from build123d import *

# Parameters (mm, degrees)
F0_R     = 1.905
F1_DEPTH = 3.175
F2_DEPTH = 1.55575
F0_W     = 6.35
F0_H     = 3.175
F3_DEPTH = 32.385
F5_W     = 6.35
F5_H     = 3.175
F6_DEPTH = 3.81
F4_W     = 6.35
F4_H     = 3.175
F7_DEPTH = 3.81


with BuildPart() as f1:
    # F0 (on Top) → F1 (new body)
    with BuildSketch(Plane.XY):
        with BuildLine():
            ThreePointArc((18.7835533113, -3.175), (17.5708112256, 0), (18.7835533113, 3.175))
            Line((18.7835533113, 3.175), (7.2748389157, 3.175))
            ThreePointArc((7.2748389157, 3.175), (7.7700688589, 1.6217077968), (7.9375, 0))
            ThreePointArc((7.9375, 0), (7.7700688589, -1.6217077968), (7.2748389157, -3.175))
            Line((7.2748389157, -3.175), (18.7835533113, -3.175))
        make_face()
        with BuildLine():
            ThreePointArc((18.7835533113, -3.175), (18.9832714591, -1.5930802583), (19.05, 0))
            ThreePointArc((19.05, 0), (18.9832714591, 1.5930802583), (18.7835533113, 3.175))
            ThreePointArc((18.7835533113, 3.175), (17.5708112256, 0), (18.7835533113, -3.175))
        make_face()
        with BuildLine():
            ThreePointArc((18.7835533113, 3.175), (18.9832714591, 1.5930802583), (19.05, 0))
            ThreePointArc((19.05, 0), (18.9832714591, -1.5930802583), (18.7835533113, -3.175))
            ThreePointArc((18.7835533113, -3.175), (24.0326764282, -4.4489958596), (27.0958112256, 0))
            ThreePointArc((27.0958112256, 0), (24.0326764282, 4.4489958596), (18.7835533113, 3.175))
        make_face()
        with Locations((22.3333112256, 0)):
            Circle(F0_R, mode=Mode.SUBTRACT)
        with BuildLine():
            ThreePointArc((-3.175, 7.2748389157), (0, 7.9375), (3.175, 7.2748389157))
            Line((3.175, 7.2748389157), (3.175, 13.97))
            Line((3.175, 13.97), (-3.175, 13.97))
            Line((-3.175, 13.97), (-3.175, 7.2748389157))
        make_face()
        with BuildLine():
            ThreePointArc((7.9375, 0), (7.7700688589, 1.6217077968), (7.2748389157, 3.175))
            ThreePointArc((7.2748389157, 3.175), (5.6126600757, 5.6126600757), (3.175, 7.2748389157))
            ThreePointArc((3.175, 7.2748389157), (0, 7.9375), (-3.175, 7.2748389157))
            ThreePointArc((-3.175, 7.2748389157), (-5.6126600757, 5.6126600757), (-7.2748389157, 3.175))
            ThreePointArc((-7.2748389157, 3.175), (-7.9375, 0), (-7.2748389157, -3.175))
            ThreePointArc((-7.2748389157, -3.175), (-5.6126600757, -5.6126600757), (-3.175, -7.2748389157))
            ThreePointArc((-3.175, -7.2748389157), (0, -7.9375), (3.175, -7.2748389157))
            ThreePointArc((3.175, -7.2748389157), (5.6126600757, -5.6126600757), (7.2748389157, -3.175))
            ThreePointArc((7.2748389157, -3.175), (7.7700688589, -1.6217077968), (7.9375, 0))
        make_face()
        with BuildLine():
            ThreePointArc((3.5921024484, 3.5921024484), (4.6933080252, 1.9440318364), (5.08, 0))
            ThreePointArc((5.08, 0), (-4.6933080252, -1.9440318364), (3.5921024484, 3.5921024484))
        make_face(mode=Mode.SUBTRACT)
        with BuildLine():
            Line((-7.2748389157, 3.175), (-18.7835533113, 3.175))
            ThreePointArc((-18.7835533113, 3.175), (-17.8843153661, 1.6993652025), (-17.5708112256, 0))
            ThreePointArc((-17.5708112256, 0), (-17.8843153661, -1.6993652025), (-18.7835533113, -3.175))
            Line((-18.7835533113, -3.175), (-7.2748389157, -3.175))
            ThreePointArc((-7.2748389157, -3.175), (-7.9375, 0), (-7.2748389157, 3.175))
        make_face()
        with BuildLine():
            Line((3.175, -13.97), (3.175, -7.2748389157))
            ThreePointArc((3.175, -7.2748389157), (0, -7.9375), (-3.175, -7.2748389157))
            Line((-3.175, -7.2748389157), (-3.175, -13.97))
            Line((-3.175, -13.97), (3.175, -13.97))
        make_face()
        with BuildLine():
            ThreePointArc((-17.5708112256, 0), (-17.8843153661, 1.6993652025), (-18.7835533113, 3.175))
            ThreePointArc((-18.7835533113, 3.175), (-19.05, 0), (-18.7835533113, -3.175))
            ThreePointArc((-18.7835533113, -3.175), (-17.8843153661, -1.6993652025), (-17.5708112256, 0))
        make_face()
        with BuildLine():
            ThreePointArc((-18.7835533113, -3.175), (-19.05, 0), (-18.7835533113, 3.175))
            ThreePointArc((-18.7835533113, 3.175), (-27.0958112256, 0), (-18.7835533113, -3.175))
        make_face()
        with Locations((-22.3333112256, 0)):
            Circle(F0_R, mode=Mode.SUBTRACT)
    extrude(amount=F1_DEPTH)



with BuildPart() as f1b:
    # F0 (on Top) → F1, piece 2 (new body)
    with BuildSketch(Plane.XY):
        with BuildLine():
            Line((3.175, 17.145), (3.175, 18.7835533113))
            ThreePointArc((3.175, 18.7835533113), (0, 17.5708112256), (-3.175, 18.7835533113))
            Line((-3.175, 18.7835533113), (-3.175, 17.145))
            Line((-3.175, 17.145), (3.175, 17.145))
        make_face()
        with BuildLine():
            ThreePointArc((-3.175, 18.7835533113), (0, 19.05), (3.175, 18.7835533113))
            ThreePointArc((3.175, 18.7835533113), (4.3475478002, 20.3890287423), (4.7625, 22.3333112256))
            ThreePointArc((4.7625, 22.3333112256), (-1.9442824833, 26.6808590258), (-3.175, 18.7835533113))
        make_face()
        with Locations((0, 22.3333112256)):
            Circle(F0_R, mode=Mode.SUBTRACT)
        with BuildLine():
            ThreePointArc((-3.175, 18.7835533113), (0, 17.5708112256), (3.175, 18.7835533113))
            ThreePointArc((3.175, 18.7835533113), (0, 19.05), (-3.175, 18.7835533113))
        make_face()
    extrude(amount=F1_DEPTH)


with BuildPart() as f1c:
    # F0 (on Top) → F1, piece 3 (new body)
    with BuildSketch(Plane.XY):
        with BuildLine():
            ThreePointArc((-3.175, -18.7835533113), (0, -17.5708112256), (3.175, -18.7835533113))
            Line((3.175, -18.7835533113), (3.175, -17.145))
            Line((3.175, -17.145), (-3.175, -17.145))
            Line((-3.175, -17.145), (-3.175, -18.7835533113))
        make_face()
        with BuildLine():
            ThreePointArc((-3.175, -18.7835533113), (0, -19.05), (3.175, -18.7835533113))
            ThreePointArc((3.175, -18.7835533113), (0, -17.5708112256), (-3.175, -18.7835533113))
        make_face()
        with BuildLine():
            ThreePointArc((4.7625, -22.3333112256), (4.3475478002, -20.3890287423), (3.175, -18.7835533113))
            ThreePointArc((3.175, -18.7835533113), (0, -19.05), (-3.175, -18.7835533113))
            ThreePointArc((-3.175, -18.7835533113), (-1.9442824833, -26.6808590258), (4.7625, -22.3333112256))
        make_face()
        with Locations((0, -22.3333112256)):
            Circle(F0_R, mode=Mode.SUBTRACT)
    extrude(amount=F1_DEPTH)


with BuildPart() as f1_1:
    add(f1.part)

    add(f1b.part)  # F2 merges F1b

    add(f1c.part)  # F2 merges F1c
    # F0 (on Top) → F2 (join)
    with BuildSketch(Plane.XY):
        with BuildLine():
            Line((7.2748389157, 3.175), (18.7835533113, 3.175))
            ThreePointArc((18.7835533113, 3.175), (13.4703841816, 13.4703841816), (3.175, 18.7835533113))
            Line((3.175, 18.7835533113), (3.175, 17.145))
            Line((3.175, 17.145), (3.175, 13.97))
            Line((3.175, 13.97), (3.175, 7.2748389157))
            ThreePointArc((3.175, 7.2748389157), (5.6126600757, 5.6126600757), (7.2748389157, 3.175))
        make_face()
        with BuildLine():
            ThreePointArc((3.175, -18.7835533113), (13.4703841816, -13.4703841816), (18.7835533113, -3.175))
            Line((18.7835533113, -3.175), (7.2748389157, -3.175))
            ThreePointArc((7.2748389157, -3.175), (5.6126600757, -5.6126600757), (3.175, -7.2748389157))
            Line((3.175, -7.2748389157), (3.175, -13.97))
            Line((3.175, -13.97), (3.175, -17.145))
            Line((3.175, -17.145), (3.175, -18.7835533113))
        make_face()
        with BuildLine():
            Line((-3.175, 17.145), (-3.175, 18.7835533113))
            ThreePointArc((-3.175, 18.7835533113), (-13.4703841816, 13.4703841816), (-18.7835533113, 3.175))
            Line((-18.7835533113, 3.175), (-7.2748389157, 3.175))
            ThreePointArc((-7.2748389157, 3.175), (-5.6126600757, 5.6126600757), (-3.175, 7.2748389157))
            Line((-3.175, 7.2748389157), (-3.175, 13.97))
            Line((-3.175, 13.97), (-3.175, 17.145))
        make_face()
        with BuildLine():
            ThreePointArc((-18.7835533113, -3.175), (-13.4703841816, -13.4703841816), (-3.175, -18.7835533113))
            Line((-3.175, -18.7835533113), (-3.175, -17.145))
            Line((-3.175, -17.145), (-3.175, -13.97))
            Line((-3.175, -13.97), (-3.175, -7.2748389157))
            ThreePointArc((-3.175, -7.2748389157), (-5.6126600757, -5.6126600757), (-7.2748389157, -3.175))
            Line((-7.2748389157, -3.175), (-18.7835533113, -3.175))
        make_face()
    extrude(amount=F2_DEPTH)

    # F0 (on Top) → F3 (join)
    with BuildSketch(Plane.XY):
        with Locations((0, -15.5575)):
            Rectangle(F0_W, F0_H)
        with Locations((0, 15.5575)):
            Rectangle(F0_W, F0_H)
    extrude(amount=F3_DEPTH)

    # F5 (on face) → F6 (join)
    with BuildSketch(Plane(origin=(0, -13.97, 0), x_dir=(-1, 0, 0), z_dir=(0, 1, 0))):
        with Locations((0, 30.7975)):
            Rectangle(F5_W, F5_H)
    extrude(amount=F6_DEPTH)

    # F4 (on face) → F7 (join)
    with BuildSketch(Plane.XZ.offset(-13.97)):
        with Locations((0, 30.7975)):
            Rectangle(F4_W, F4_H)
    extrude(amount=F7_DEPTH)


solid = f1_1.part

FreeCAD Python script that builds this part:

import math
import FreeCAD as App
import Part
import Sketcher
Q = App.Units.Quantity


def add_polygon(sketch, points):
    """Adds a closed chain of lines whose ends are joined by coincident constraints."""
    first, n = sketch.GeometryCount, len(points)
    for a, b in zip(points, points[1:] + points[:1]):
        sketch.addGeometry(Part.LineSegment(App.Vector(*a, 0), App.Vector(*b, 0)), False)
    for i in range(n):
        sketch.addConstraint(Sketcher.Constraint("Coincident", first + i, 2, first + (i + 1) % n, 1))

doc = App.newDocument("Part")
body = doc.addObject("PartDesign::Body", "Body")

# Sketch on XY plane
sketch1 = body.newObject("Sketcher::SketchObject", "Sketch")
sketch1.AttachmentSupport = (doc.getObject("XY_Plane"), [""])
sketch1.MapMode = "FlatFace"
sketch1.addGeometry([
    Part.LineSegment(App.Vector(18.8, 3.2, 0), App.Vector(7.3, 3.2, 0)),  # 0
    Part.ArcOfCircle(Part.Circle(App.Vector(0, 0, 0), App.Vector(0, 0, 1), 7.9), math.radians(24), math.radians(66)),  # 1
    Part.LineSegment(App.Vector(3.2, 7.3, 0), App.Vector(3.2, 14, 0)),  # 2
    Part.LineSegment(App.Vector(3.2, 14, 0), App.Vector(-3.2, 14, 0)),  # 3
    Part.LineSegment(App.Vector(-3.2, 14, 0), App.Vector(-3.2, 7.3, 0)),  # 4
    Part.ArcOfCircle(Part.Circle(App.Vector(0, 0, 0), App.Vector(0, 0, 1), 7.9), math.radians(114), math.radians(156)),  # 5
    Part.LineSegment(App.Vector(-7.3, 3.2, 0), App.Vector(-18.8, 3.2, 0)),  # 6
    Part.ArcOfCircle(Part.Circle(App.Vector(-22.3, 0, 0), App.Vector(0, 0, 1), 4.8), math.radians(42), math.radians(318)),  # 7
    Part.LineSegment(App.Vector(-18.8, -3.2, 0), App.Vector(-7.3, -3.2, 0)),  # 8
    Part.ArcOfCircle(Part.Circle(App.Vector(0, 0, 0), App.Vector(0, 0, 1), 7.9), math.radians(-156), math.radians(-114)),  # 9
    Part.LineSegment(App.Vector(-3.2, -7.3, 0), App.Vector(-3.2, -14, 0)),  # 10
    Part.LineSegment(App.Vector(-3.2, -14, 0), App.Vector(3.2, -14, 0)),  # 11
    Part.LineSegment(App.Vector(3.2, -14, 0), App.Vector(3.2, -7.3, 0)),  # 12
    Part.ArcOfCircle(Part.Circle(App.Vector(0, 0, 0), App.Vector(0, 0, 1), 7.9), math.radians(-66), math.radians(-24)),  # 13
    Part.LineSegment(App.Vector(7.3, -3.2, 0), App.Vector(18.8, -3.2, 0)),  # 14
    Part.ArcOfCircle(Part.Circle(App.Vector(22.3, 0, 0), App.Vector(0, 0, 1), 4.8), math.radians(-138), math.radians(0)),  # 15
    Part.ArcOfCircle(Part.Circle(App.Vector(22.3, 0, 0), App.Vector(0, 0, 1), 4.8), math.radians(0), math.radians(138)),  # 16
    Part.Circle(App.Vector(-22.3, 0, 0), App.Vector(0, 0, 1), 1.9),  # 17
    Part.ArcOfCircle(Part.Circle(App.Vector(0, 0, 0), App.Vector(0, 0, 1), 5.1), math.radians(45), math.radians(360)),  # 18
    Part.ArcOfCircle(Part.Circle(App.Vector(0, 0, 0), App.Vector(0, 0, 1), 5.1), math.radians(0), math.radians(45)),  # 19
    Part.Circle(App.Vector(22.3, 0, 0), App.Vector(0, 0, 1), 1.9),  # 20
], False)
sketch1.addConstraint([
    Sketcher.Constraint("Coincident", 0, 2, 1, 1),
    Sketcher.Constraint("Coincident", 1, 2, 2, 1),
    Sketcher.Constraint("Coincident", 2, 2, 3, 1),
    Sketcher.Constraint("Coincident", 3, 2, 4, 1),
    Sketcher.Constraint("Coincident", 4, 2, 5, 1),
    Sketcher.Constraint("Coincident", 5, 2, 6, 1),
    Sketcher.Constraint("Coincident", 6, 2, 7, 1),
    Sketcher.Constraint("Coincident", 7, 2, 8, 1),
    Sketcher.Constraint("Coincident", 8, 2, 9, 1),
    Sketcher.Constraint("Coincident", 9, 2, 10, 1),
    Sketcher.Constraint("Coincident", 10, 2, 11, 1),
    Sketcher.Constraint("Coincident", 11, 2, 12, 1),
    Sketcher.Constraint("Coincident", 12, 2, 13, 1),
    Sketcher.Constraint("Coincident", 13, 2, 14, 1),
    Sketcher.Constraint("Coincident", 14, 2, 15, 1),
    Sketcher.Constraint("Tangent", 15, 2, 16, 1),
    Sketcher.Constraint("Coincident", 16, 2, 0, 1),
    Sketcher.Constraint("Tangent", 18, 1, 19, 2),
    Sketcher.Constraint("Coincident", 19, 1, 18, 2),
    Sketcher.Constraint("Horizontal", 0),
    Sketcher.Constraint("Vertical", 2),
    Sketcher.Constraint("Horizontal", 3),
    Sketcher.Constraint("Vertical", 4),
    Sketcher.Constraint("Horizontal", 6),
    Sketcher.Constraint("Horizontal", 8),
    Sketcher.Constraint("Vertical", 10),
    Sketcher.Constraint("Horizontal", 11),
    Sketcher.Constraint("Vertical", 12),
    Sketcher.Constraint("Horizontal", 14),
    Sketcher.Constraint("Coincident", 1, 3, -1, 1),
    Sketcher.Constraint("Coincident", 5, 3, -1, 1),
    Sketcher.Constraint("Coincident", 9, 3, -1, 1),
    Sketcher.Constraint("Coincident", 13, 3, -1, 1),
    Sketcher.Constraint("Coincident", 18, 3, -1, 1),
    Sketcher.Constraint("Coincident", 17, 3, 7, 3),
    Sketcher.Constraint("Coincident", 20, 3, 15, 3),
    Sketcher.Constraint("Equal", 1, 5),
    Sketcher.Constraint("Equal", 5, 9),
    Sketcher.Constraint("Equal", 9, 13),
    Sketcher.Constraint("Equal", 7, 15),
    Sketcher.Constraint("Equal", 15, 16),
    Sketcher.Constraint("Equal", 17, 20),
    Sketcher.Constraint("Symmetric", 7, 3, 15, 3, -1, 1),
    Sketcher.Constraint("Symmetric", 2, 2, 10, 2, -1, 1),
    Sketcher.Constraint("Symmetric", 7, 2, 14, 2, -2),
    Sketcher.Constraint("PointOnObject", 15, 2, -1),
    Sketcher.Constraint("PointOnObject", 19, 1, -1),
    Sketcher.Constraint("Horizontal", 1, 2, 4, 2),
    Sketcher.Constraint("Horizontal", 0, 2, 5, 2),
    Sketcher.Constraint("Horizontal", 9, 2, 12, 2),
    Sketcher.Constraint("Vertical", 6, 2, 7, 2),
    Sketcher.Constraint("Radius", 18, Q("0.2 in")),
    Sketcher.Constraint("Diameter", 17, Q("0.15 in")),
    Sketcher.Constraint("Radius", 1, Q("0.3125 in")),
    Sketcher.Constraint("Radius", 7, Q("0.1875 in")),
    Sketcher.Constraint("DistanceX", 3, 2, 3, 1, Q("0.25 in")),
    Sketcher.Constraint("DistanceY", -1, 1, 2, 2, Q("0.55 in")),
    Sketcher.Constraint("DistanceY", 7, 2, 6, 2, Q("0.25 in")),
    Sketcher.Constraint("DistanceX", 0, 2, 0, 1, Q("11.508714 mm")),
    Sketcher.Constraint("DistanceX", -1, 1, 18, 1, Q("3.592102 mm")),
])
pad1 = body.newObject("PartDesign::Pad", "Pad")
pad1.Profile = sketch1
pad1.Length = Q("0.125 in")
body2 = doc.addObject("PartDesign::Body", "Body001")

# Sketch on XY plane
sketch2 = body2.newObject("Sketcher::SketchObject", "Sketch001")
sketch2.AttachmentSupport = (doc.getObject("XY_Plane001"), [""])
sketch2.MapMode = "FlatFace"
sketch2.addGeometry([
    Part.LineSegment(App.Vector(3.2, 17.1, 0), App.Vector(3.2, 18.8, 0)),  # 0
    Part.ArcOfCircle(Part.Circle(App.Vector(0, 22.3, 0), App.Vector(0, 0, 1), 4.8), math.radians(-48), math.radians(0)),  # 1
    Part.ArcOfCircle(Part.Circle(App.Vector(0, 22.3, 0), App.Vector(0, 0, 1), 4.8), math.radians(0), math.radians(228)),  # 2
    Part.LineSegment(App.Vector(-3.2, 18.8, 0), App.Vector(-3.2, 17.1, 0)),  # 3
    Part.LineSegment(App.Vector(-3.2, 17.1, 0), App.Vector(3.2, 17.1, 0)),  # 4
    Part.Circle(App.Vector(0, 22.3, 0), App.Vector(0, 0, 1), 1.9),  # 5
], False)
sketch2.addConstraint([
    Sketcher.Constraint("Coincident", 0, 2, 1, 1),
    Sketcher.Constraint("Tangent", 1, 2, 2, 1),
    Sketcher.Constraint("Coincident", 2, 2, 3, 1),
    Sketcher.Constraint("Coincident", 3, 2, 4, 1),
    Sketcher.Constraint("Coincident", 4, 2, 0, 1),
    Sketcher.Constraint("Vertical", 0),
    Sketcher.Constraint("Vertical", 3),
    Sketcher.Constraint("Horizontal", 4),
    Sketcher.Constraint("Coincident", 5, 3, 1, 3),
    Sketcher.Constraint("Equal", 1, 2),
    Sketcher.Constraint("Symmetric", 0, 2, 2, 2, -2),
    Sketcher.Constraint("Horizontal", 5, 3, 1, 2),
    Sketcher.Constraint("Diameter", 5, Q("0.15 in")),
    Sketcher.Constraint("Radius", 1, Q("0.1875 in")),
    Sketcher.Constraint("DistanceX", 4, 1, 4, 2, Q("0.25 in")),
    Sketcher.Constraint("DistanceY", -1, 1, 3, 2, Q("0.675 in")),
    Sketcher.Constraint("DistanceY", 0, 1, 0, 2, Q("1.638553 mm")),
])
pad2 = body2.newObject("PartDesign::Pad", "Pad001")
pad2.Profile = sketch2
pad2.Length = Q("0.125 in")
body3 = doc.addObject("PartDesign::Body", "Body002")

# Sketch on XY plane
sketch3 = body3.newObject("Sketcher::SketchObject", "Sketch002")
sketch3.AttachmentSupport = (doc.getObject("XY_Plane002"), [""])
sketch3.MapMode = "FlatFace"
sketch3.addGeometry([
    Part.LineSegment(App.Vector(3.2, -18.8, 0), App.Vector(3.2, -17.1, 0)),  # 0
    Part.LineSegment(App.Vector(3.2, -17.1, 0), App.Vector(-3.2, -17.1, 0)),  # 1
    Part.LineSegment(App.Vector(-3.2, -17.1, 0), App.Vector(-3.2, -18.8, 0)),  # 2
    Part.ArcOfCircle(Part.Circle(App.Vector(0, -22.3, 0), App.Vector(0, 0, 1), 4.8), math.radians(132), math.radians(360)),  # 3
    Part.ArcOfCircle(Part.Circle(App.Vector(0, -22.3, 0), App.Vector(0, 0, 1), 4.8), math.radians(0), math.radians(48)),  # 4
    Part.Circle(App.Vector(0, -22.3, 0), App.Vector(0, 0, 1), 1.9),  # 5
], False)
sketch3.addConstraint([
    Sketcher.Constraint("Coincident", 0, 2, 1, 1),
    Sketcher.Constraint("Coincident", 1, 2, 2, 1),
    Sketcher.Constraint("Coincident", 2, 2, 3, 1),
    Sketcher.Constraint("Tangent", 3, 2, 4, 1),
    Sketcher.Constraint("Coincident", 4, 2, 0, 1),
    Sketcher.Constraint("Vertical", 0),
    Sketcher.Constraint("Horizontal", 1),
    Sketcher.Constraint("Vertical", 2),
    Sketcher.Constraint("Coincident", 5, 3, 3, 3),
    Sketcher.Constraint("Equal", 3, 4),
    Sketcher.Constraint("Symmetric", 2, 2, 4, 2, -2),
    Sketcher.Constraint("Horizontal", 5, 3, 3, 2),
    Sketcher.Constraint("Diameter", 5, Q("0.15 in")),
    Sketcher.Constraint("Radius", 3, Q("0.1875 in")),
    Sketcher.Constraint("DistanceX", 1, 2, 1, 1, Q("0.25 in")),
    Sketcher.Constraint("DistanceY", 0, 2, -1, 1, Q("0.675 in")),
    Sketcher.Constraint("DistanceY", 0, 1, 0, 2, Q("1.638553 mm")),
])
pad3 = body3.newObject("PartDesign::Pad", "Pad002")
pad3.Profile = sketch3
pad3.Length = Q("0.125 in")
body.AllowCompound = True
doc.recompute()

boolean = body.newObject("PartDesign::Boolean", "Boolean")
boolean.Type = "Fuse"
boolean.addObjects([body2])
doc.recompute()

boolean2 = body.newObject("PartDesign::Boolean", "Boolean001")
boolean2.Type = "Fuse"
boolean2.addObjects([body3])

# Sketch on XY plane
sketch4 = body.newObject("Sketcher::SketchObject", "Sketch003")
sketch4.AttachmentSupport = (doc.getObject("XY_Plane"), [""])
sketch4.MapMode = "FlatFace"
sketch4.addGeometry([
    Part.LineSegment(App.Vector(7, 3, 0), App.Vector(19, 3, 0)),  # 0
    Part.ArcOfCircle(Part.Circle(App.Vector(0, 0, 0), App.Vector(0, 0, 1), 19), math.radians(10), math.radians(80)),  # 1
    Part.LineSegment(App.Vector(3, 19, 0), App.Vector(3, 7, 0)),  # 2
    Part.ArcOfCircle(Part.Circle(App.Vector(0, 0, 0), App.Vector(0, 0, 1), 8), math.radians(24), math.radians(66)),  # 3
    Part.ArcOfCircle(Part.Circle(App.Vector(0, 0, 0), App.Vector(0, 0, 1), 19), math.radians(-80), math.radians(-10)),  # 4
    Part.LineSegment(App.Vector(19, -3, 0), App.Vector(7, -3, 0)),  # 5
    Part.ArcOfCircle(Part.Circle(App.Vector(0, 0, 0), App.Vector(0, 0, 1), 8), math.radians(-66), math.radians(-24)),  # 6
    Part.LineSegment(App.Vector(3, -7, 0), App.Vector(3, -19, 0)),  # 7
    Part.ArcOfCircle(Part.Circle(App.Vector(0, 0, 0), App.Vector(0, 0, 1), 19), math.radians(100), math.radians(170)),  # 8
    Part.LineSegment(App.Vector(-19, 3, 0), App.Vector(-7, 3, 0)),  # 9
    Part.ArcOfCircle(Part.Circle(App.Vector(0, 0, 0), App.Vector(0, 0, 1), 8), math.radians(114), math.radians(156)),  # 10
    Part.LineSegment(App.Vector(-3, 7, 0), App.Vector(-3, 19, 0)),  # 11
    Part.ArcOfCircle(Part.Circle(App.Vector(0, 0, 0), App.Vector(0, 0, 1), 19), math.radians(-170), math.radians(-100)),  # 12
    Part.LineSegment(App.Vector(-3, -19, 0), App.Vector(-3, -7, 0)),  # 13
    Part.ArcOfCircle(Part.Circle(App.Vector(0, 0, 0), App.Vector(0, 0, 1), 8), math.radians(-156), math.radians(-114)),  # 14
    Part.LineSegment(App.Vector(-7, -3, 0), App.Vector(-19, -3, 0)),  # 15
], False)
sketch4.addConstraint([
    Sketcher.Constraint("Coincident", 0, 2, 1, 1),
    Sketcher.Constraint("Coincident", 1, 2, 2, 1),
    Sketcher.Constraint("Coincident", 2, 2, 3, 2),
    Sketcher.Constraint("Coincident", 3, 1, 0, 1),
    Sketcher.Constraint("Coincident", 4, 2, 5, 1),
    Sketcher.Constraint("Coincident", 5, 2, 6, 2),
    Sketcher.Constraint("Coincident", 6, 1, 7, 1),
    Sketcher.Constraint("Coincident", 7, 2, 4, 1),
    Sketcher.Constraint("Coincident", 8, 2, 9, 1),
    Sketcher.Constraint("Coincident", 9, 2, 10, 2),
    Sketcher.Constraint("Coincident", 10, 1, 11, 1),
    Sketcher.Constraint("Coincident", 11, 2, 8, 1),
    Sketcher.Constraint("Coincident", 12, 2, 13, 1),
    Sketcher.Constraint("Coincident", 13, 2, 14, 2),
    Sketcher.Constraint("Coincident", 14, 1, 15, 1),
    Sketcher.Constraint("Coincident", 15, 2, 12, 1),
    Sketcher.Constraint("Horizontal", 0),
    Sketcher.Constraint("Vertical", 2),
    Sketcher.Constraint("Horizontal", 5),
    Sketcher.Constraint("Vertical", 7),
    Sketcher.Constraint("Horizontal", 9),
    Sketcher.Constraint("Vertical", 11),
    Sketcher.Constraint("Vertical", 13),
    Sketcher.Constraint("Horizontal", 15),
    Sketcher.Constraint("Coincident", 1, 3, -1, 1),
    Sketcher.Constraint("Coincident", 3, 3, -1, 1),
    Sketcher.Constraint("Coincident", 4, 3, -1, 1),
    Sketcher.Constraint("Coincident", 6, 3, -1, 1),
    Sketcher.Constraint("Coincident", 8, 3, -1, 1),
    Sketcher.Constraint("Coincident", 10, 3, -1, 1),
    Sketcher.Constraint("Coincident", 12, 3, -1, 1),
    Sketcher.Constraint("Coincident", 14, 3, -1, 1),
    Sketcher.Constraint("Equal", 1, 4),
    Sketcher.Constraint("Equal", 3, 6),
    Sketcher.Constraint("Equal", 4, 8),
    Sketcher.Constraint("Equal", 6, 10),
    Sketcher.Constraint("Equal", 8, 12),
    Sketcher.Constraint("Equal", 10, 14),
    Sketcher.Constraint("Horizontal", 3, 1, 8, 2),
    Sketcher.Constraint("Horizontal", 2, 2, 10, 1),
    Sketcher.Constraint("Horizontal", 7, 2, 12, 2),
    Sketcher.Constraint("Horizontal", 5, 2, 14, 1),
    Sketcher.Constraint("Vertical", 0, 2, 4, 2),
    Sketcher.Constraint("Vertical", 2, 2, 6, 1),
    Sketcher.Constraint("Equal", 15, 2),
    Sketcher.Constraint("Radius", 1, Q("0.75 in")),
    Sketcher.Constraint("Radius", 3, Q("0.3125 in")),
    Sketcher.Constraint("DistanceY", 4, 2, 0, 2, Q("0.25 in")),
])
pad4 = body.newObject("PartDesign::Pad", "Pad003")
pad4.Profile = sketch4
pad4.Length = 1.55575

# Sketch on XY plane
sketch5 = body.newObject("Sketcher::SketchObject", "Sketch004")
sketch5.AttachmentSupport = (doc.getObject("XY_Plane"), [""])
sketch5.MapMode = "FlatFace"
add_polygon(sketch5, [(-3.2, -14), (-3.2, -17.1), (3.2, -17.1), (3.2, -14)])  # lines 0-3
add_polygon(sketch5, [(-3.2, 17.1), (-3.2, 14), (3.2, 14), (3.2, 17.1)])  # lines 4-7
sketch5.addConstraint([
    Sketcher.Constraint("Vertical", 0),
    Sketcher.Constraint("Horizontal", 1),
    Sketcher.Constraint("Vertical", 2),
    Sketcher.Constraint("Horizontal", 3),
    Sketcher.Constraint("Vertical", 4),
    Sketcher.Constraint("Horizontal", 5),
    Sketcher.Constraint("Vertical", 6),
    Sketcher.Constraint("Horizontal", 7),
    Sketcher.Constraint("Symmetric", 2, 2, 4, 2, -1, 1),
    Sketcher.Constraint("Symmetric", 0, 2, 6, 2, -1, 1),
    Sketcher.Constraint("Vertical", 3, 2, 4, 2),
    Sketcher.Constraint("DistanceX", 1, 1, 1, 2, Q("0.25 in")),
    Sketcher.Constraint("DistanceY", 3, 2, 4, 2, Q("1.1 in")),
    Sketcher.Constraint("DistanceY", 0, 2, 0, 1, Q("0.125 in")),
])
pad5 = body.newObject("PartDesign::Pad", "Pad004")
pad5.Profile = sketch5
pad5.Length = Q("1.275 in")

# Sketch on XZ plane
sketch6 = body.newObject("Sketcher::SketchObject", "Sketch005")
sketch6.AttachmentSupport = (doc.getObject("XZ_Plane"), [""])
sketch6.MapMode = "FlatFace"
sketch6.AttachmentOffset = App.Placement(App.Vector(0, 0, 0.55 * 25.4), App.Rotation())
add_polygon(sketch6, [(3.2, 32.4), (3.2, 29.2), (-3.2, 29.2), (-3.2, 32.4)])  # lines 0-3
sketch6.addConstraint([
    Sketcher.Constraint("Vertical", 0),
    Sketcher.Constraint("Horizontal", 1),
    Sketcher.Constraint("Vertical", 2),
    Sketcher.Constraint("Horizontal", 3),
    Sketcher.Constraint("DistanceX", 1, 2, 1, 1, Q("0.25 in")),
    Sketcher.Constraint("DistanceY", 0, 2, 0, 1, Q("0.125 in")),
    Sketcher.Constraint("DistanceY", -1, 1, 0, 2, Q("1.15 in")),
    Sketcher.Constraint("DistanceX", -1, 1, 0, 2, Q("0.125 in")),
])
pad6 = body.newObject("PartDesign::Pad", "Pad005")
pad6.Profile = sketch6
pad6.Length = Q("0.15 in")
pad6.Reversed = True

# Sketch on XZ plane
sketch7 = body.newObject("Sketcher::SketchObject", "Sketch006")
sketch7.AttachmentSupport = (doc.getObject("XZ_Plane"), [""])
sketch7.MapMode = "FlatFace"
sketch7.AttachmentOffset = App.Placement(App.Vector(0, 0, -0.55 * 25.4), App.Rotation())
add_polygon(sketch7, [(-3.2, 32.4), (-3.2, 29.2), (3.2, 29.2), (3.2, 32.4)])  # lines 0-3
sketch7.addConstraint([
    Sketcher.Constraint("Vertical", 0),
    Sketcher.Constraint("Horizontal", 1),
    Sketcher.Constraint("Vertical", 2),
    Sketcher.Constraint("Horizontal", 3),
    Sketcher.Constraint("DistanceX", 1, 1, 1, 2, Q("0.25 in")),
    Sketcher.Constraint("DistanceY", 0, 2, 0, 1, Q("0.125 in")),
    Sketcher.Constraint("DistanceY", -1, 1, 0, 2, Q("1.15 in")),
    Sketcher.Constraint("DistanceX", 0, 2, -1, 1, Q("0.125 in")),
])
pad7 = body.newObject("PartDesign::Pad", "Pad006")
pad7.Profile = sketch7
pad7.Length = Q("0.15 in")

doc.recompute()
